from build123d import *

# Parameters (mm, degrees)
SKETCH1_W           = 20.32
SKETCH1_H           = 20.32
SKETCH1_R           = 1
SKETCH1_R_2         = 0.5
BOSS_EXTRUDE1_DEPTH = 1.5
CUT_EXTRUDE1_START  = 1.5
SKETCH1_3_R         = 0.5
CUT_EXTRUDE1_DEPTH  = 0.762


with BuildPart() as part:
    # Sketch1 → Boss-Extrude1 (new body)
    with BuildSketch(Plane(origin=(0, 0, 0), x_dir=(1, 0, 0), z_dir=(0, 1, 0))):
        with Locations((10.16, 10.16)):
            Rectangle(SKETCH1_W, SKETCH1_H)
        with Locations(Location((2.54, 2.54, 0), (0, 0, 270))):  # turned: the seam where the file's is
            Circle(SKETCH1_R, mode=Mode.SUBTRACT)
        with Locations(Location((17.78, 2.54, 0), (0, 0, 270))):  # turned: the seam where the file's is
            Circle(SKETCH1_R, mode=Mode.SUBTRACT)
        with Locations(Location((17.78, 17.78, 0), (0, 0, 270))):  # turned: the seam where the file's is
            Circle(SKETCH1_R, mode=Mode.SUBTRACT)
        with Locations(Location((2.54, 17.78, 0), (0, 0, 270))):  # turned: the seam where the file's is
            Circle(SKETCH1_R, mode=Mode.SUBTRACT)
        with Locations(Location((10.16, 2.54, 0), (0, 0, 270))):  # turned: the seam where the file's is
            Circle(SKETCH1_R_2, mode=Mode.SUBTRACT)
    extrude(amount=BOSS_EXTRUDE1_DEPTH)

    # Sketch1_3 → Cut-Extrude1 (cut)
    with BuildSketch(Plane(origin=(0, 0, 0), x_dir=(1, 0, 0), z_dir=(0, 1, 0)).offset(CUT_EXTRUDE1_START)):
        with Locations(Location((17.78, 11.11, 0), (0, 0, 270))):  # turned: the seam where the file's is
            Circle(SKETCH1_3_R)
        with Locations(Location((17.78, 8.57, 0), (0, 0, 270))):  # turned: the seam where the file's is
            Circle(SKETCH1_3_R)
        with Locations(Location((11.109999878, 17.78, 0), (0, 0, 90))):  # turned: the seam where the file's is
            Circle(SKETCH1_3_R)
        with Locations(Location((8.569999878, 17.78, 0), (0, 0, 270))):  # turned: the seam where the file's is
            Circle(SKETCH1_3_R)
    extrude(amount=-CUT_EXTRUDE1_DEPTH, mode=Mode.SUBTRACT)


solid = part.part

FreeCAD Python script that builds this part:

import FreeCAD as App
import Part
import Sketcher

V = App.Vector


def add_polygon(sketch, points):
    """Adds a closed chain of lines whose ends are joined by coincident constraints."""
    first, n = sketch.GeometryCount, len(points)
    for a, b in zip(points, points[1:] + points[:1]):
        sketch.addGeometry(Part.LineSegment(App.Vector(*a, 0), App.Vector(*b, 0)), False)
    for i in range(n):
        sketch.addConstraint(Sketcher.Constraint("Coincident", first + i, 2, first + (i + 1) % n, 1))

doc = App.newDocument("Part")
body = doc.addObject("PartDesign::Body", "Body")

# Sketch on XZ plane
sketch1 = body.newObject("Sketcher::SketchObject", "Sketch")
sketch1.AttachmentSupport = (doc.getObject("XZ_Plane"), [""])
sketch1.MapMode = "FlatFace"
add_polygon(sketch1, [(0, -20.3), (0, 0), (20.3, 0), (20.3, -20.3)])  # lines 0-3
sketch1.addGeometry(Part.Circle(V(2.5, -2.5, 0), V(0, 0, 1), 1), False)  # 4
sketch1.addGeometry(Part.Circle(V(10.2, -2.5, 0), V(0, 0, 1), 0.5), False)  # 5
sketch1.addGeometry(Part.Circle(V(17.8, -2.5, 0), V(0, 0, 1), 1), False)  # 6
sketch1.addGeometry(Part.Circle(V(2.5, -17.8, 0), V(0, 0, 1), 1), False)  # 7
sketch1.addGeometry(Part.Circle(V(17.8, -17.8, 0), V(0, 0, 1), 1), False)  # 8
sketch1.addConstraint(Sketcher.Constraint("Vertical", 0))
sketch1.addConstraint(Sketcher.Constraint("Horizontal", 1))
sketch1.addConstraint(Sketcher.Constraint("Vertical", 2))
sketch1.addConstraint(Sketcher.Constraint("Horizontal", 3))
sketch1.addConstraint(Sketcher.Constraint("Coincident", 0, 2, -1, 1))
sketch1.addConstraint(Sketcher.Constraint("Equal", 4, 6))
sketch1.addConstraint(Sketcher.Constraint("Equal", 6, 7))
sketch1.addConstraint(Sketcher.Constraint("Equal", 7, 8))
sketch1.addConstraint(Sketcher.Constraint("Horizontal", 4, 3, 5, 3))
sketch1.addConstraint(Sketcher.Constraint("Horizontal", 5, 3, 6, 3))
sketch1.addConstraint(Sketcher.Constraint("Horizontal", 7, 3, 8, 3))
sketch1.addConstraint(Sketcher.Constraint("Vertical", 4, 3, 7, 3))
sketch1.addConstraint(Sketcher.Constraint("Vertical", 6, 3, 8, 3))
sketch1.addConstraint(Sketcher.Constraint("Equal", 3, 0))
sketch1.addConstraint(Sketcher.Constraint("Diameter", 4, 2.0))
sketch1.addConstraint(Sketcher.Constraint("Diameter", 5, 1.0))
sketch1.addConstraint(Sketcher.Constraint("DistanceX", 1, 1, 1, 2, 20.32))
sketch1.addConstraint(Sketcher.Constraint("DistanceX", -1, 1, 4, 3, 2.54))
sketch1.addConstraint(Sketcher.Constraint("DistanceY", 4, 3, -1, 1, 2.54))
sketch1.addConstraint(Sketcher.Constraint("DistanceX", -1, 1, 5, 3, 10.16))
sketch1.addConstraint(Sketcher.Constraint("DistanceX", -1, 1, 6, 3, 17.78))
sketch1.addConstraint(Sketcher.Constraint("DistanceY", 7, 3, -1, 1, 17.78))
pad1 = body.newObject("PartDesign::Pad", "Pad")
pad1.Profile = sketch1
pad1.Length = 1.5
pad1.Reversed = True

# Sketch on XZ plane
sketch2 = body.newObject("Sketcher::SketchObject", "Sketch001")
sketch2.AttachmentSupport = (doc.getObject("XZ_Plane"), [""])
sketch2.MapMode = "FlatFace"
sketch2.AttachmentOffset = App.Placement(V(0, 0, -1.5), App.Rotation())
sketch2.addGeometry(Part.Circle(V(17.8, -11.1, 0), V(0, 0, 1), 0.5), False)
sketch2.addGeometry(Part.Circle(V(17.8, -8.6, 0), V(0, 0, 1), 0.5), False)
sketch2.addGeometry(Part.Circle(V(11.1, -17.8, 0), V(0, 0, 1), 0.5), False)
sketch2.addGeometry(Part.Circle(V(8.6, -17.8, 0), V(0, 0, 1), 0.5), False)
sketch2.addConstraint(Sketcher.Constraint("Equal", 0, 1))
sketch2.addConstraint(Sketcher.Constraint("Equal", 1, 2))
sketch2.addConstraint(Sketcher.Constraint("Equal", 2, 3))
sketch2.addConstraint(Sketcher.Constraint("Horizontal", 2, 3, 3, 3))
sketch2.addConstraint(Sketcher.Constraint("Vertical", 0, 3, 1, 3))
sketch2.addConstraint(Sketcher.Constraint("Diameter", 0, 1.0))
sketch2.addConstraint(Sketcher.Constraint("DistanceX", -1, 1, 0, 3, 17.78))
sketch2.addConstraint(Sketcher.Constraint("DistanceY", 0, 3, -1, 1, 11.11))
sketch2.addConstraint(Sketcher.Constraint("DistanceY", 1, 3, -1, 1, 8.57))
sketch2.addConstraint(Sketcher.Constraint("DistanceX", -1, 1, 2, 3, 11.11))
sketch2.addConstraint(Sketcher.Constraint("DistanceY", 2, 3, -1, 1, 17.78))
sketch2.addConstraint(Sketcher.Constraint("DistanceX", -1, 1, 3, 3, 8.57))
pocket1 = body.newObject("PartDesign::Pocket", "Pocket")
pocket1.Profile = sketch2
pocket1.Length = 0.762
pocket1.Reversed = True

doc.recompute()
